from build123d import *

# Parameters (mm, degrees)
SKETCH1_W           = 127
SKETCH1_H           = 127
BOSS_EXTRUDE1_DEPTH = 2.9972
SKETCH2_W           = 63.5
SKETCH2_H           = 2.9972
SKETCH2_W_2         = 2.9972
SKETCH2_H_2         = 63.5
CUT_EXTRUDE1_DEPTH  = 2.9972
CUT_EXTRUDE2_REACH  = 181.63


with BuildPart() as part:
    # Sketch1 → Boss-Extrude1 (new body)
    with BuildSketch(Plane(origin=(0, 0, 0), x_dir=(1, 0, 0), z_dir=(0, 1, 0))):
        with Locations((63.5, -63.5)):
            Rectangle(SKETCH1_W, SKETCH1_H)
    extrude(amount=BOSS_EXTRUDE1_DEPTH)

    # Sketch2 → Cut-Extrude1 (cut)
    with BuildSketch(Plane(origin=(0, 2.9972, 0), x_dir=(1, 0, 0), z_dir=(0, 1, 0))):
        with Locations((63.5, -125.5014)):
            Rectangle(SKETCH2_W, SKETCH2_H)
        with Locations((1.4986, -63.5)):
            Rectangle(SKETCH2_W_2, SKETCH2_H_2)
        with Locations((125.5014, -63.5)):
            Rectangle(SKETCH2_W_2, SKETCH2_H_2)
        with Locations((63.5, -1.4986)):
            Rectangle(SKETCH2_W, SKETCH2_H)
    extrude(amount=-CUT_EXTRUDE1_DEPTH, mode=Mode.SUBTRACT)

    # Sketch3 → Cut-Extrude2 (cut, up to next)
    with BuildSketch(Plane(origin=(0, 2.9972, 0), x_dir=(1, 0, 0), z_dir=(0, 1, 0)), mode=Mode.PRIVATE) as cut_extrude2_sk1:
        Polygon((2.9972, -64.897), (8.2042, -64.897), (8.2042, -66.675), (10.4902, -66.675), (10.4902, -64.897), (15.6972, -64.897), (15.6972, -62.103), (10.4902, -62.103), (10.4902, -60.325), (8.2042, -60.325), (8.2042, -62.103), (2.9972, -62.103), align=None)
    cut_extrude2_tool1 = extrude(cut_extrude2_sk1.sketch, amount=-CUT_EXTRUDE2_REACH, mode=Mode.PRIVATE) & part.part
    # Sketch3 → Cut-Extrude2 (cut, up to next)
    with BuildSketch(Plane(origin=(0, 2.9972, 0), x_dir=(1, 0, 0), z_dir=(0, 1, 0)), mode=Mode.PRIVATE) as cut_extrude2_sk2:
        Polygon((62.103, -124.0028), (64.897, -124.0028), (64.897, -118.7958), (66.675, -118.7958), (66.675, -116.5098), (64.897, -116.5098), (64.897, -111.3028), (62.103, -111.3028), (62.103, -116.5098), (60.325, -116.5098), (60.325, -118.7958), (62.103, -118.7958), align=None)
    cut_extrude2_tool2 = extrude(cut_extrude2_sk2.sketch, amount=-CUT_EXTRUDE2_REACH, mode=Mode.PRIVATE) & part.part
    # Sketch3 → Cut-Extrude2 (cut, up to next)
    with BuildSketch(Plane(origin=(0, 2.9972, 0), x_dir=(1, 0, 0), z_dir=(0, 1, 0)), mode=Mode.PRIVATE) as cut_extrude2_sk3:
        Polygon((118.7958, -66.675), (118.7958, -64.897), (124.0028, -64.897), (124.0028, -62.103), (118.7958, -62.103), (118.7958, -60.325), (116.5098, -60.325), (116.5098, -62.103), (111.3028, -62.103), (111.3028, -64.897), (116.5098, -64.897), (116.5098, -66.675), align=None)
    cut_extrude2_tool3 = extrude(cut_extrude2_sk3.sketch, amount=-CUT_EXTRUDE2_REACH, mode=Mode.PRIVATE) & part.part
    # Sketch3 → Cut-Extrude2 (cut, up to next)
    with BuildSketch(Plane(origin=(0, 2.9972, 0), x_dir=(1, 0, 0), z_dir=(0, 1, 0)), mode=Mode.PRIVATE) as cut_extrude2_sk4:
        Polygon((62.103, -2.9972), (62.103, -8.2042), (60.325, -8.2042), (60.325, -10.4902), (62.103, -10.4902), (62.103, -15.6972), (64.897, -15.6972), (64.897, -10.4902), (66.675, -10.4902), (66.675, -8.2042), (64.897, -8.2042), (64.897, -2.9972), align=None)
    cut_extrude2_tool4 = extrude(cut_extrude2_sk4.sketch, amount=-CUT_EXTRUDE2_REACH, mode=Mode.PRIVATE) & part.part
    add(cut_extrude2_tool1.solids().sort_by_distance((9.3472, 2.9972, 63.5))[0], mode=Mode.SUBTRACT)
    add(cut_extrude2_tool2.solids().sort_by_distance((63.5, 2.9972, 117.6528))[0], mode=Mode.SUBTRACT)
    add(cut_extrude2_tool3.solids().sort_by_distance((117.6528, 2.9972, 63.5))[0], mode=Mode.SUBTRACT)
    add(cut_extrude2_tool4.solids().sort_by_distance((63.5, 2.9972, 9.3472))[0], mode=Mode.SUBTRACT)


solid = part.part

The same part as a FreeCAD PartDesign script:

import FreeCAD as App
import Part
import Sketcher

V = App.Vector
Q = App.Units.Quantity


def add_polygon(sketch, points):
    """Adds a closed chain of lines whose ends are joined by coincident constraints."""
    first, n = sketch.GeometryCount, len(points)
    for a, b in zip(points, points[1:] + points[:1]):
        sketch.addGeometry(Part.LineSegment(App.Vector(*a, 0), App.Vector(*b, 0)), False)
    for i in range(n):
        sketch.addConstraint(Sketcher.Constraint("Coincident", first + i, 2, first + (i + 1) % n, 1))

doc = App.newDocument("Part")
body = doc.addObject("PartDesign::Body", "Body")

sketch1 = body.newObject("Sketcher::SketchObject", "Sketch")
sketch1.AttachmentSupport = (doc.getObject("XZ_Plane"), [""])
sketch1.MapMode = "FlatFace"
add_polygon(sketch1, [(0, 0), (0, 127), (127, 127), (127, 0)])
sketch1.addConstraint([
    Sketcher.Constraint("Vertical", 0),
    Sketcher.Constraint("Horizontal", 1),
    Sketcher.Constraint("Vertical", 2),
    Sketcher.Constraint("Horizontal", 3),
    Sketcher.Constraint("Coincident", 3, 2, -1, 1),
    Sketcher.Constraint("Equal", 3, 0),
    Sketcher.Constraint("DistanceX", 1, 1, 1, 2, Q("5 in")),
])
pad1 = body.newObject("PartDesign::Pad", "Pad")
pad1.Profile = sketch1
pad1.Length = Q("0.118 in")
pad1.Reversed = True

sketch2 = body.newObject("Sketcher::SketchObject", "Sketch001")
sketch2.AttachmentSupport = (doc.getObject("XZ_Plane"), [""])
sketch2.MapMode = "FlatFace"
sketch2.AttachmentOffset = App.Placement(V(0, 0, -0.118 * 25.4), App.Rotation())
add_polygon(sketch2, [(31.75, 124.0028), (31.75, 127), (95.25, 127), (95.25, 124.0028)])
add_polygon(sketch2, [(0, 31.75), (0, 95.25), (2.9972, 95.25), (2.9972, 31.75)])
add_polygon(sketch2, [(124.0028, 31.75), (124.0028, 95.25), (127, 95.25), (127, 31.75)])
add_polygon(sketch2, [(31.75, 0), (31.75, 2.9972), (95.25, 2.9972), (95.25, 0)])
sketch2.addConstraint([
    Sketcher.Constraint("Vertical", 0),
    Sketcher.Constraint("Horizontal", 1),
    Sketcher.Constraint("Vertical", 2),
    Sketcher.Constraint("Horizontal", 3),
    Sketcher.Constraint("Vertical", 4),
    Sketcher.Constraint("Horizontal", 5),
    Sketcher.Constraint("Vertical", 6),
    Sketcher.Constraint("Horizontal", 7),
    Sketcher.Constraint("Vertical", 8),
    Sketcher.Constraint("Horizontal", 9),
    Sketcher.Constraint("Vertical", 10),
    Sketcher.Constraint("Horizontal", 11),
    Sketcher.Constraint("Vertical", 12),
    Sketcher.Constraint("Horizontal", 13),
    Sketcher.Constraint("Vertical", 14),
    Sketcher.Constraint("Horizontal", 15),
    Sketcher.Constraint("PointOnObject", 4, 2, -2),
    Sketcher.Constraint("PointOnObject", 14, 2, -1),
    Sketcher.Constraint("Horizontal", 5, 2, 8, 2),
    Sketcher.Constraint("Horizontal", 7, 2, 10, 2),
    Sketcher.Constraint("Vertical", 3, 2, 12, 2),
    Sketcher.Constraint("Vertical", 2, 2, 13, 2),
    Sketcher.Constraint("Equal", 7, 9),
    Sketcher.Constraint("Equal", 11, 0),
    Sketcher.Constraint("Equal", 15, 4),
    Sketcher.Constraint("Equal", 2, 12),
    Sketcher.Constraint("DistanceX", 1, 1, 1, 2, Q("2.5 in")),
    Sketcher.Constraint("DistanceY", -1, 1, 0, 2, Q("5 in")),
    Sketcher.Constraint("DistanceX", -1, 1, 9, 2, Q("5 in")),
    Sketcher.Constraint("DistanceX", 5, 1, 5, 2, Q("0.118 in")),
    Sketcher.Constraint("DistanceX", -1, 1, 0, 2, Q("1.25 in")),
    Sketcher.Constraint("DistanceY", -1, 1, 4, 2, Q("3.75 in")),
])
pocket1 = body.newObject("PartDesign::Pocket", "Pocket")
pocket1.Profile = sketch2
pocket1.Length = Q("0.118 in")
pocket1.Reversed = True

sketch3 = body.newObject("Sketcher::SketchObject", "Sketch002")
sketch3.AttachmentSupport = (doc.getObject("XZ_Plane"), [""])
sketch3.MapMode = "FlatFace"
sketch3.AttachmentOffset = App.Placement(V(0, 0, -0.118 * 25.4), App.Rotation())
add_polygon(sketch3, [(2.9972, 64.897), (8.2042, 64.897), (8.2042, 66.675), (10.4902, 66.675), (10.4902, 64.897), (15.6972, 64.897), (15.6972, 62.103), (10.4902, 62.103), (10.4902, 60.325), (8.2042, 60.325), (8.2042, 62.103), (2.9972, 62.103)])
sketch3.addConstraint([
    Sketcher.Constraint("Horizontal", 0),
    Sketcher.Constraint("Vertical", 1),
    Sketcher.Constraint("Horizontal", 2),
    Sketcher.Constraint("Vertical", 3),
    Sketcher.Constraint("Horizontal", 4),
    Sketcher.Constraint("Vertical", 5),
    Sketcher.Constraint("Horizontal", 6),
    Sketcher.Constraint("Vertical", 7),
    Sketcher.Constraint("Horizontal", 8),
    Sketcher.Constraint("Vertical", 9),
    Sketcher.Constraint("Horizontal", 10),
    Sketcher.Constraint("Vertical", 11),
    Sketcher.Constraint("Horizontal", 0, 2, 3, 2),
    Sketcher.Constraint("Horizontal", 6, 2, 9, 2),
    Sketcher.Constraint("Vertical", 3, 2, 6, 2),
    Sketcher.Constraint("Vertical", 1, 2, 8, 2),
    Sketcher.Constraint("Equal", 0, 4),
    Sketcher.Constraint("Equal", 3, 7),
    Sketcher.Constraint("DistanceX", 2, 1, 2, 2, Q("0.09 in")),
    Sketcher.Constraint("DistanceY", 1, 1, 1, 2, Q("0.07 in")),
    Sketcher.Constraint("DistanceY", 5, 2, 5, 1, Q("0.11 in")),
    Sketcher.Constraint("DistanceX", 0, 1, 0, 2, Q("0.205 in")),
    Sketcher.Constraint("DistanceX", -1, 1, 0, 2, Q("0.323 in")),
    Sketcher.Constraint("DistanceY", -1, 1, 0, 2, Q("2.555 in")),
])
pocket2 = body.newObject("PartDesign::Pocket", "Pocket001")
pocket2.Profile = sketch3
pocket2.Type = "UpToFirst"
pocket2.Reversed = True

sketch4 = body.newObject("Sketcher::SketchObject", "Sketch003")
sketch4.AttachmentSupport = (doc.getObject("XZ_Plane"), [""])
sketch4.MapMode = "FlatFace"
sketch4.AttachmentOffset = App.Placement(V(0, 0, -0.118 * 25.4), App.Rotation())
add_polygon(sketch4, [(62.103, 124.0028), (64.897, 124.0028), (64.897, 118.7958), (66.675, 118.7958), (66.675, 116.5098), (64.897, 116.5098), (64.897, 111.3028), (62.103, 111.3028), (62.103, 116.5098), (60.325, 116.5098), (60.325, 118.7958), (62.103, 118.7958)])
sketch4.addConstraint([
    Sketcher.Constraint("Horizontal", 0),
    Sketcher.Constraint("Vertical", 1),
    Sketcher.Constraint("Horizontal", 2),
    Sketcher.Constraint("Vertical", 3),
    Sketcher.Constraint("Horizontal", 4),
    Sketcher.Constraint("Vertical", 5),
    Sketcher.Constraint("Horizontal", 6),
    Sketcher.Constraint("Vertical", 7),
    Sketcher.Constraint("Horizontal", 8),
    Sketcher.Constraint("Vertical", 9),
    Sketcher.Constraint("Horizontal", 10),
    Sketcher.Constraint("Vertical", 11),
    Sketcher.Constraint("Horizontal", 4, 2, 7, 2),
    Sketcher.Constraint("Horizontal", 2, 2, 9, 2),
    Sketcher.Constraint("Vertical", 1, 2, 4, 2),
    Sketcher.Constraint("Vertical", 7, 2, 10, 2),
    Sketcher.Constraint("Equal", 4, 8),
    Sketcher.Constraint("Equal", 1, 5),
    Sketcher.Constraint("DistanceX", 0, 1, 0, 2, Q("0.11 in")),
    Sketcher.Constraint("DistanceX", 2, 1, 2, 2, Q("0.07 in")),
    Sketcher.Constraint("DistanceY", 3, 2, 3, 1, Q("0.09 in")),
    Sketcher.Constraint("DistanceY", 5, 2, 0, 2, Q("0.5 in")),
    Sketcher.Constraint("DistanceX", -1, 1, 0, 2, Q("2.555 in")),
    Sketcher.Constraint("DistanceY", -1, 1, 0, 2, Q("4.882 in")),
])
pocket3 = body.newObject("PartDesign::Pocket", "Pocket002")
pocket3.Profile = sketch4
pocket3.Type = "UpToFirst"
pocket3.Reversed = True

sketch5 = body.newObject("Sketcher::SketchObject", "Sketch004")
sketch5.AttachmentSupport = (doc.getObject("XZ_Plane"), [""])
sketch5.MapMode = "FlatFace"
sketch5.AttachmentOffset = App.Placement(V(0, 0, -0.118 * 25.4), App.Rotation())
add_polygon(sketch5, [(118.7958, 66.675), (118.7958, 64.897), (124.0028, 64.897), (124.0028, 62.103), (118.7958, 62.103), (118.7958, 60.325), (116.5098, 60.325), (116.5098, 62.103), (111.3028, 62.103), (111.3028, 64.897), (116.5098, 64.897), (116.5098, 66.675)])
sketch5.addConstraint([
    Sketcher.Constraint("Vertical", 0),
    Sketcher.Constraint("Horizontal", 1),
    Sketcher.Constraint("Vertical", 2),
    Sketcher.Constraint("Horizontal", 3),
    Sketcher.Constraint("Vertical", 4),
    Sketcher.Constraint("Horizontal", 5),
    Sketcher.Constraint("Vertical", 6),
    Sketcher.Constraint("Horizontal", 7),
    Sketcher.Constraint("Vertical", 8),
    Sketcher.Constraint("Horizontal", 9),
    Sketcher.Constraint("Vertical", 10),
    Sketcher.Constraint("Horizontal", 11),
    Sketcher.Constraint("Horizontal", 3, 2, 6, 2),
    Sketcher.Constraint("Horizontal", 1, 2, 8, 2),
    Sketcher.Constraint("Vertical", 0, 2, 3, 2),
    Sketcher.Constraint("Vertical", 6, 2, 9, 2),
    Sketcher.Constraint("Equal", 3, 7),
    Sketcher.Constraint("Equal", 0, 4),
    Sketcher.Constraint("DistanceX", 5, 2, 5, 1, Q("0.09 in")),
    Sketcher.Constraint("DistanceY", 0, 2, 0, 1, Q("0.07 in")),
    Sketcher.Constraint("DistanceY", 2, 2, 2, 1, Q("0.11 in")),
    Sketcher.Constraint("DistanceX", 1, 1, 1, 2, Q("0.205 in")),
    Sketcher.Constraint("DistanceX", -1, 1, 0, 2, Q("4.677 in")),
    Sketcher.Constraint("DistanceY", -1, 1, 0, 2, Q("2.555 in")),
])
pocket4 = body.newObject("PartDesign::Pocket", "Pocket003")
pocket4.Profile = sketch5
pocket4.Type = "UpToFirst"
pocket4.Reversed = True

sketch6 = body.newObject("Sketcher::SketchObject", "Sketch005")
sketch6.AttachmentSupport = (doc.getObject("XZ_Plane"), [""])
sketch6.MapMode = "FlatFace"
sketch6.AttachmentOffset = App.Placement(V(0, 0, -0.118 * 25.4), App.Rotation())
add_polygon(sketch6, [(62.103, 2.9972), (62.103, 8.2042), (60.325, 8.2042), (60.325, 10.4902), (62.103, 10.4902), (62.103, 15.6972), (64.897, 15.6972), (64.897, 10.4902), (66.675, 10.4902), (66.675, 8.2042), (64.897, 8.2042), (64.897, 2.9972)])
sketch6.addConstraint([
    Sketcher.Constraint("Vertical", 0),
    Sketcher.Constraint("Horizontal", 1),
    Sketcher.Constraint("Vertical", 2),
    Sketcher.Constraint("Horizontal", 3),
    Sketcher.Constraint("Vertical", 4),
    Sketcher.Constraint("Horizontal", 5),
    Sketcher.Constraint("Vertical", 6),
    Sketcher.Constraint("Horizontal", 7),
    Sketcher.Constraint("Vertical", 8),
    Sketcher.Constraint("Horizontal", 9),
    Sketcher.Constraint("Vertical", 10),
    Sketcher.Constraint("Horizontal", 11),
    Sketcher.Constraint("Horizontal", 3, 2, 6, 2),
    Sketcher.Constraint("Horizontal", 1, 2, 8, 2),
    Sketcher.Constraint("Vertical", 0, 2, 3, 2),
    Sketcher.Constraint("Vertical", 6, 2, 9, 2),
    Sketcher.Constraint("Equal", 3, 7),
    Sketcher.Constraint("Equal", 0, 4),
    Sketcher.Constraint("DistanceX", 1, 2, 1, 1, Q("0.07 in")),
    Sketcher.Constraint("DistanceX", 5, 1, 5, 2, Q("0.11 in")),
    Sketcher.Constraint("DistanceY", 2, 1, 2, 2, Q("0.09 in")),
    Sketcher.Constraint("DistanceY", 0, 1, 0, 2, Q("0.205 in")),
    Sketcher.Constraint("DistanceX", -1, 1, 0, 2, Q("2.445 in")),
    Sketcher.Constraint("DistanceY", -1, 1, 0, 2, Q("0.323 in")),
])
pocket5 = body.newObject("PartDesign::Pocket", "Pocket004")
pocket5.Profile = sketch6
pocket5.Type = "UpToFirst"
pocket5.Reversed = True

doc.recompute()
